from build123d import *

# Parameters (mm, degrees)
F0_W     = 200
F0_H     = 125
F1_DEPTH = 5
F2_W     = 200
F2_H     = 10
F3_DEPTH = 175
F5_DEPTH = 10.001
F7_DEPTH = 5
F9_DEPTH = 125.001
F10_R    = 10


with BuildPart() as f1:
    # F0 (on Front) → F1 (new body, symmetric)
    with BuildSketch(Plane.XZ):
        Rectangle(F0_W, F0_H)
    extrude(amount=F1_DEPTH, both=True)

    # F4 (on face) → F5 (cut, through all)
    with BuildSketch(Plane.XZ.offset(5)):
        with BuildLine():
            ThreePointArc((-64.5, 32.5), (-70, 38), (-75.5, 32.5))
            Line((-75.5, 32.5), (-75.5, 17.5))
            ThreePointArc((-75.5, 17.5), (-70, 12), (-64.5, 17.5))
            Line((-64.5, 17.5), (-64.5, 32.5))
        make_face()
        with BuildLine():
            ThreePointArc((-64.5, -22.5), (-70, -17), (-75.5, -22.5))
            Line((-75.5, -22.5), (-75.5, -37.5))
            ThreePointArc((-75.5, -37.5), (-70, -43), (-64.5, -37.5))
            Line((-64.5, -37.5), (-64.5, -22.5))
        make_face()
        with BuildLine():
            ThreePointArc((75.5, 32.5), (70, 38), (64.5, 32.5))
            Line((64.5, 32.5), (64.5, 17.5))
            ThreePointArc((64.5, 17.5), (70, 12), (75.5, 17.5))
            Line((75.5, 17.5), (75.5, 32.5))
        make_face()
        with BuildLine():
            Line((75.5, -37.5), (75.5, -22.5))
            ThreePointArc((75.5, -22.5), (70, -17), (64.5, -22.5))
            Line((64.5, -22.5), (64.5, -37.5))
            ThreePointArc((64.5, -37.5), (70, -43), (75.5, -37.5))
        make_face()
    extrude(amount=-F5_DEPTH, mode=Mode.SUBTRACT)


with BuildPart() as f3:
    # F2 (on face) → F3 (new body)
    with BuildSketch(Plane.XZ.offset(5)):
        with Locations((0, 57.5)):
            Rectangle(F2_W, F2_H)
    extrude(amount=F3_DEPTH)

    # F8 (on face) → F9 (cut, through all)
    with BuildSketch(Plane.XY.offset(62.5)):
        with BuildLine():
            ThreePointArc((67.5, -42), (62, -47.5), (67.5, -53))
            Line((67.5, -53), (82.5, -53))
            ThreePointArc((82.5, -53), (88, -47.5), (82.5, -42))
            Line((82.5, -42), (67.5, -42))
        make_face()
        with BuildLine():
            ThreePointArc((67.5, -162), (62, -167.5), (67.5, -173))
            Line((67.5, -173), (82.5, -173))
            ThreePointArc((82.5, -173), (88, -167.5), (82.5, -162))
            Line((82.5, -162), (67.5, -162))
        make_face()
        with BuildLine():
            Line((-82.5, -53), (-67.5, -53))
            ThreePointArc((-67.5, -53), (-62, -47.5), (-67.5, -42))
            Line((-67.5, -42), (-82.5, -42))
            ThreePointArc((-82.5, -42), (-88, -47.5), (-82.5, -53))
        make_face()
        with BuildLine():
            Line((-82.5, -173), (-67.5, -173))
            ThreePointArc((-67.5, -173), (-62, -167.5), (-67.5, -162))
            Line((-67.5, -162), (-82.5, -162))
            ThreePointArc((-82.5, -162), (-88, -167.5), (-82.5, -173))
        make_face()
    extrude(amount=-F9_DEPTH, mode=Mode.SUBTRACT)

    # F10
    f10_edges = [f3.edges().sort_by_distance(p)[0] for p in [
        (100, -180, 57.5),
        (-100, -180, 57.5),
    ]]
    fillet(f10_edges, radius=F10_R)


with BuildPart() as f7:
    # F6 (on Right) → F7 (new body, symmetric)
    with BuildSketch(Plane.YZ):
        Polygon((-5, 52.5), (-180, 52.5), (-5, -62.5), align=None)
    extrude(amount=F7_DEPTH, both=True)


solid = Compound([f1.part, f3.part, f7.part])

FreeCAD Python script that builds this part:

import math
import FreeCAD as App
import Part
import Sketcher
from FreeCAD import Vector


def edges_at(feature, points):
    """Names of the edges that pass closest to the given points."""
    edges = feature.Shape.Edges
    near = lambda p: min(range(len(edges)), key=lambda i: edges[i].distToShape(Part.Vertex(*p))[0])
    return sorted({f"Edge{near(p) + 1}" for p in points})

doc = App.newDocument("Part")
body = doc.addObject("PartDesign::Body", "Body")

sketch1 = body.newObject("Sketcher::SketchObject", "Sketch")
sketch1.AttachmentSupport = (doc.getObject("XZ_Plane"), [""])
sketch1.MapMode = "FlatFace"
sketch1.addGeometry([
    Part.LineSegment(Vector(-100, 62, 0), Vector(-100, -62, 0)),
    Part.LineSegment(Vector(-100, -62, 0), Vector(100, -62, 0)),
    Part.LineSegment(Vector(100, -62, 0), Vector(100, 62, 0)),
    Part.LineSegment(Vector(100, 62, 0), Vector(-100, 62, 0)),
], False)
sketch1.addConstraint([
    Sketcher.Constraint("Coincident", 0, 2, 1, 1),
    Sketcher.Constraint("Coincident", 1, 2, 2, 1),
    Sketcher.Constraint("Coincident", 2, 2, 3, 1),
    Sketcher.Constraint("Coincident", 3, 2, 0, 1),
    Sketcher.Constraint("Vertical", 0),
    Sketcher.Constraint("Horizontal", 1),
    Sketcher.Constraint("Vertical", 2),
    Sketcher.Constraint("Horizontal", 3),
    Sketcher.Constraint("Symmetric", 0, 2, 2, 2, -1, 1),
    Sketcher.Constraint("DistanceX", 1, 1, 1, 2, 200.0),
    Sketcher.Constraint("DistanceY", 0, 2, 0, 1, 125.0),
])
pad1 = body.newObject("PartDesign::Pad", "Pad")
pad1.Profile = sketch1
pad1.Length = 10
pad1.Midplane = True

sketch2 = body.newObject("Sketcher::SketchObject", "Sketch001")
sketch2.AttachmentSupport = (doc.getObject("XZ_Plane"), [""])
sketch2.MapMode = "FlatFace"
sketch2.AttachmentOffset = App.Placement(Vector(0, 0, 5), App.Rotation())
sketch2.addGeometry([
    Part.ArcOfCircle(Part.Circle(Vector(-70, 32, 0), Vector(0, 0, 1), 6), math.radians(0), math.radians(180)),
    Part.LineSegment(Vector(-76, 32, 0), Vector(-76, 18, 0)),
    Part.ArcOfCircle(Part.Circle(Vector(-70, 18, 0), Vector(0, 0, 1), 6), math.radians(180), math.radians(360)),
    Part.LineSegment(Vector(-64, 18, 0), Vector(-64, 32, 0)),
    Part.ArcOfCircle(Part.Circle(Vector(-70, -22, 0), Vector(0, 0, 1), 6), math.radians(0), math.radians(180)),
    Part.LineSegment(Vector(-76, -22, 0), Vector(-76, -38, 0)),
    Part.ArcOfCircle(Part.Circle(Vector(-70, -38, 0), Vector(0, 0, 1), 6), math.radians(180), math.radians(360)),
    Part.LineSegment(Vector(-64, -38, 0), Vector(-64, -22, 0)),
    Part.ArcOfCircle(Part.Circle(Vector(70, 32, 0), Vector(0, 0, 1), 6), math.radians(0), math.radians(180)),
    Part.LineSegment(Vector(64, 32, 0), Vector(64, 18, 0)),
    Part.ArcOfCircle(Part.Circle(Vector(70, 18, 0), Vector(0, 0, 1), 6), math.radians(180), math.radians(360)),
    Part.LineSegment(Vector(76, 18, 0), Vector(76, 32, 0)),
    Part.LineSegment(Vector(76, -38, 0), Vector(76, -22, 0)),
    Part.ArcOfCircle(Part.Circle(Vector(70, -22, 0), Vector(0, 0, 1), 6), math.radians(0), math.radians(180)),
    Part.LineSegment(Vector(64, -22, 0), Vector(64, -38, 0)),
    Part.ArcOfCircle(Part.Circle(Vector(70, -38, 0), Vector(0, 0, 1), 6), math.radians(180), math.radians(360)),
], False)
sketch2.addConstraint([
    Sketcher.Constraint("Tangent", 0, 2, 1, 1),
    Sketcher.Constraint("Tangent", 1, 2, 2, 1),
    Sketcher.Constraint("Tangent", 2, 2, 3, 1),
    Sketcher.Constraint("Tangent", 3, 2, 0, 1),
    Sketcher.Constraint("Tangent", 4, 2, 5, 1),
    Sketcher.Constraint("Tangent", 5, 2, 6, 1),
    Sketcher.Constraint("Tangent", 6, 2, 7, 1),
    Sketcher.Constraint("Tangent", 7, 2, 4, 1),
    Sketcher.Constraint("Tangent", 8, 2, 9, 1),
    Sketcher.Constraint("Tangent", 9, 2, 10, 1),
    Sketcher.Constraint("Tangent", 10, 2, 11, 1),
    Sketcher.Constraint("Tangent", 11, 2, 8, 1),
    Sketcher.Constraint("Tangent", 12, 2, 13, 1),
    Sketcher.Constraint("Tangent", 13, 2, 14, 1),
    Sketcher.Constraint("Tangent", 14, 2, 15, 1),
    Sketcher.Constraint("Tangent", 15, 2, 12, 1),
    Sketcher.Constraint("Vertical", 1),
    Sketcher.Constraint("Vertical", 3),
    Sketcher.Constraint("Vertical", 5),
    Sketcher.Constraint("Vertical", 7),
    Sketcher.Constraint("Vertical", 9),
    Sketcher.Constraint("Vertical", 11),
    Sketcher.Constraint("Vertical", 12),
    Sketcher.Constraint("Vertical", 14),
    Sketcher.Constraint("Equal", 2, 4),
    Sketcher.Constraint("Equal", 6, 8),
    Sketcher.Constraint("Equal", 10, 13),
    Sketcher.Constraint("Symmetric", 0, 3, 8, 3, -2),
    Sketcher.Constraint("Symmetric", 4, 3, 13, 3, -2),
    Sketcher.Constraint("Horizontal", 2, 3, 10, 3),
    Sketcher.Constraint("Horizontal", 6, 3, 15, 3),
    Sketcher.Constraint("Vertical", 2, 3, 4, 3),
    Sketcher.Constraint("Equal", 3, 5),
    Sketcher.Constraint("Radius", 0, 5.5),
    Sketcher.Constraint("DistanceY", 1, 2, 1, 1, 15.0),
    Sketcher.Constraint("DistanceX", 0, 3, -1, 1, 70.0),
    Sketcher.Constraint("DistanceY", 4, 3, 2, 3, 40.0),
    Sketcher.Constraint("DistanceY", -1, 1, 0, 3, 32.5),
])
pocket1 = body.newObject("PartDesign::Pocket", "Pocket")
pocket1.Profile = sketch2
pocket1.Type = "ThroughAll"
body2 = doc.addObject("PartDesign::Body", "Body001")

sketch3 = body2.newObject("Sketcher::SketchObject", "Sketch002")
sketch3.AttachmentSupport = (doc.getObject("XZ_Plane001"), [""])
sketch3.MapMode = "FlatFace"
sketch3.AttachmentOffset = App.Placement(Vector(0, 0, 5), App.Rotation())
sketch3.addGeometry([
    Part.LineSegment(Vector(-100, 62, 0), Vector(-100, 52, 0)),
    Part.LineSegment(Vector(-100, 52, 0), Vector(100, 52, 0)),
    Part.LineSegment(Vector(100, 52, 0), Vector(100, 62, 0)),
    Part.LineSegment(Vector(100, 62, 0), Vector(-100, 62, 0)),
], False)
sketch3.addConstraint([
    Sketcher.Constraint("Coincident", 0, 2, 1, 1),
    Sketcher.Constraint("Coincident", 1, 2, 2, 1),
    Sketcher.Constraint("Coincident", 2, 2, 3, 1),
    Sketcher.Constraint("Coincident", 3, 2, 0, 1),
    Sketcher.Constraint("Vertical", 0),
    Sketcher.Constraint("Horizontal", 1),
    Sketcher.Constraint("Vertical", 2),
    Sketcher.Constraint("Horizontal", 3),
    Sketcher.Constraint("DistanceX", 1, 1, 1, 2, 200.0),
    Sketcher.Constraint("DistanceY", 0, 2, 0, 1, 10.0),
    Sketcher.Constraint("DistanceX", 0, 2, -1, 1, 100.0),
    Sketcher.Constraint("DistanceY", -1, 1, 0, 2, 52.5),
])
pad2 = body2.newObject("PartDesign::Pad", "Pad001")
pad2.Profile = sketch3
pad2.Length = 175

sketch4 = body2.newObject("Sketcher::SketchObject", "Sketch003")
sketch4.AttachmentSupport = (doc.getObject("XY_Plane001"), [""])
sketch4.MapMode = "FlatFace"
sketch4.AttachmentOffset = App.Placement(Vector(0, 0, 62.5), App.Rotation())
sketch4.addGeometry([
    Part.ArcOfCircle(Part.Circle(Vector(68, -48, 0), Vector(0, 0, 1), 6), math.radians(90), math.radians(270)),
    Part.LineSegment(Vector(68, -53, 0), Vector(82, -53, 0)),
    Part.ArcOfCircle(Part.Circle(Vector(82, -48, 0), Vector(0, 0, 1), 6), math.radians(-90), math.radians(90)),
    Part.LineSegment(Vector(82, -42, 0), Vector(68, -42, 0)),
    Part.ArcOfCircle(Part.Circle(Vector(68, -168, 0), Vector(0, 0, 1), 6), math.radians(90), math.radians(270)),
    Part.LineSegment(Vector(68, -173, 0), Vector(82, -173, 0)),
    Part.ArcOfCircle(Part.Circle(Vector(82, -168, 0), Vector(0, 0, 1), 6), math.radians(-90), math.radians(90)),
    Part.LineSegment(Vector(82, -162, 0), Vector(68, -162, 0)),
    Part.LineSegment(Vector(-82, -53, 0), Vector(-68, -53, 0)),
    Part.ArcOfCircle(Part.Circle(Vector(-68, -48, 0), Vector(0, 0, 1), 6), math.radians(-90), math.radians(90)),
    Part.LineSegment(Vector(-68, -42, 0), Vector(-82, -42, 0)),
    Part.ArcOfCircle(Part.Circle(Vector(-82, -48, 0), Vector(0, 0, 1), 6), math.radians(90), math.radians(270)),
    Part.LineSegment(Vector(-82, -173, 0), Vector(-68, -173, 0)),
    Part.ArcOfCircle(Part.Circle(Vector(-68, -168, 0), Vector(0, 0, 1), 6), math.radians(-90), math.radians(90)),
    Part.LineSegment(Vector(-68, -162, 0), Vector(-82, -162, 0)),
    Part.ArcOfCircle(Part.Circle(Vector(-82, -168, 0), Vector(0, 0, 1), 6), math.radians(90), math.radians(270)),
], False)
sketch4.addConstraint([
    Sketcher.Constraint("Tangent", 0, 2, 1, 1),
    Sketcher.Constraint("Tangent", 1, 2, 2, 1),
    Sketcher.Constraint("Tangent", 2, 2, 3, 1),
    Sketcher.Constraint("Tangent", 3, 2, 0, 1),
    Sketcher.Constraint("Tangent", 4, 2, 5, 1),
    Sketcher.Constraint("Tangent", 5, 2, 6, 1),
    Sketcher.Constraint("Tangent", 6, 2, 7, 1),
    Sketcher.Constraint("Tangent", 7, 2, 4, 1),
    Sketcher.Constraint("Tangent", 8, 2, 9, 1),
    Sketcher.Constraint("Tangent", 9, 2, 10, 1),
    Sketcher.Constraint("Tangent", 10, 2, 11, 1),
    Sketcher.Constraint("Tangent", 11, 2, 8, 1),
    Sketcher.Constraint("Tangent", 12, 2, 13, 1),
    Sketcher.Constraint("Tangent", 13, 2, 14, 1),
    Sketcher.Constraint("Tangent", 14, 2, 15, 1),
    Sketcher.Constraint("Tangent", 15, 2, 12, 1),
    Sketcher.Constraint("Horizontal", 1),
    Sketcher.Constraint("Horizontal", 3),
    Sketcher.Constraint("Horizontal", 5),
    Sketcher.Constraint("Horizontal", 7),
    Sketcher.Constraint("Horizontal", 8),
    Sketcher.Constraint("Horizontal", 10),
    Sketcher.Constraint("Horizontal", 12),
    Sketcher.Constraint("Horizontal", 14),
    Sketcher.Constraint("Equal", 2, 4),
    Sketcher.Constraint("Equal", 6, 9),
    Sketcher.Constraint("Equal", 11, 13),
    Sketcher.Constraint("Symmetric", 0, 3, 9, 3, -2),
    Sketcher.Constraint("Symmetric", 4, 3, 13, 3, -2),
    Sketcher.Constraint("Vertical", 0, 3, 4, 3),
    Sketcher.Constraint("Vertical", 2, 3, 6, 3),
    Sketcher.Constraint("Vertical", 11, 3, 15, 3),
    Sketcher.Constraint("Equal", 7, 8),
    Sketcher.Constraint("Radius", 0, 5.5),
    Sketcher.Constraint("DistanceX", 1, 1, 1, 2, 15.0),
    Sketcher.Constraint("DistanceY", 0, 2, -1, 1, 53.0),
    Sketcher.Constraint("DistanceY", 4, 2, -1, 1, 173.0),
    Sketcher.Constraint("DistanceX", 9, 3, 0, 3, 135.0),
])
pocket2 = body2.newObject("PartDesign::Pocket", "Pocket001")
pocket2.Profile = sketch4
pocket2.Type = "ThroughAll"
doc.recompute()

fillet = body2.newObject("PartDesign::Fillet", "Fillet")
fillet.Base = (pocket2, edges_at(pocket2, [(100, -180, 57.5), (-100, -180, 57.5)]))
fillet.Radius = 10
body3 = doc.addObject("PartDesign::Body", "Body002")

sketch5 = body3.newObject("Sketcher::SketchObject", "Sketch004")
sketch5.AttachmentSupport = (doc.getObject("YZ_Plane002"), [""])
sketch5.MapMode = "FlatFace"
sketch5.addGeometry([
    Part.LineSegment(Vector(-5, 52, 0), Vector(-180, 52, 0)),
    Part.LineSegment(Vector(-180, 52, 0), Vector(-5, -62, 0)),
    Part.LineSegment(Vector(-5, -62, 0), Vector(-5, 52, 0)),
], False)
sketch5.addConstraint([
    Sketcher.Constraint("Coincident", 0, 2, 1, 1),
    Sketcher.Constraint("Coincident", 1, 2, 2, 1),
    Sketcher.Constraint("Coincident", 2, 2, 0, 1),
    Sketcher.Constraint("Horizontal", 0),
    Sketcher.Constraint("Vertical", 2),
    Sketcher.Constraint("DistanceX", 0, 2, 0, 1, 175.0),
    Sketcher.Constraint("DistanceY", 2, 1, 2, 2, 115.0),
    Sketcher.Constraint("DistanceX", 0, 2, -1, 1, 180.0),
    Sketcher.Constraint("DistanceY", -1, 1, 0, 2, 52.5),
])
pad3 = body3.newObject("PartDesign::Pad", "Pad002")
pad3.Profile = sketch5
pad3.Length = 10
pad3.Midplane = True

doc.recompute()
